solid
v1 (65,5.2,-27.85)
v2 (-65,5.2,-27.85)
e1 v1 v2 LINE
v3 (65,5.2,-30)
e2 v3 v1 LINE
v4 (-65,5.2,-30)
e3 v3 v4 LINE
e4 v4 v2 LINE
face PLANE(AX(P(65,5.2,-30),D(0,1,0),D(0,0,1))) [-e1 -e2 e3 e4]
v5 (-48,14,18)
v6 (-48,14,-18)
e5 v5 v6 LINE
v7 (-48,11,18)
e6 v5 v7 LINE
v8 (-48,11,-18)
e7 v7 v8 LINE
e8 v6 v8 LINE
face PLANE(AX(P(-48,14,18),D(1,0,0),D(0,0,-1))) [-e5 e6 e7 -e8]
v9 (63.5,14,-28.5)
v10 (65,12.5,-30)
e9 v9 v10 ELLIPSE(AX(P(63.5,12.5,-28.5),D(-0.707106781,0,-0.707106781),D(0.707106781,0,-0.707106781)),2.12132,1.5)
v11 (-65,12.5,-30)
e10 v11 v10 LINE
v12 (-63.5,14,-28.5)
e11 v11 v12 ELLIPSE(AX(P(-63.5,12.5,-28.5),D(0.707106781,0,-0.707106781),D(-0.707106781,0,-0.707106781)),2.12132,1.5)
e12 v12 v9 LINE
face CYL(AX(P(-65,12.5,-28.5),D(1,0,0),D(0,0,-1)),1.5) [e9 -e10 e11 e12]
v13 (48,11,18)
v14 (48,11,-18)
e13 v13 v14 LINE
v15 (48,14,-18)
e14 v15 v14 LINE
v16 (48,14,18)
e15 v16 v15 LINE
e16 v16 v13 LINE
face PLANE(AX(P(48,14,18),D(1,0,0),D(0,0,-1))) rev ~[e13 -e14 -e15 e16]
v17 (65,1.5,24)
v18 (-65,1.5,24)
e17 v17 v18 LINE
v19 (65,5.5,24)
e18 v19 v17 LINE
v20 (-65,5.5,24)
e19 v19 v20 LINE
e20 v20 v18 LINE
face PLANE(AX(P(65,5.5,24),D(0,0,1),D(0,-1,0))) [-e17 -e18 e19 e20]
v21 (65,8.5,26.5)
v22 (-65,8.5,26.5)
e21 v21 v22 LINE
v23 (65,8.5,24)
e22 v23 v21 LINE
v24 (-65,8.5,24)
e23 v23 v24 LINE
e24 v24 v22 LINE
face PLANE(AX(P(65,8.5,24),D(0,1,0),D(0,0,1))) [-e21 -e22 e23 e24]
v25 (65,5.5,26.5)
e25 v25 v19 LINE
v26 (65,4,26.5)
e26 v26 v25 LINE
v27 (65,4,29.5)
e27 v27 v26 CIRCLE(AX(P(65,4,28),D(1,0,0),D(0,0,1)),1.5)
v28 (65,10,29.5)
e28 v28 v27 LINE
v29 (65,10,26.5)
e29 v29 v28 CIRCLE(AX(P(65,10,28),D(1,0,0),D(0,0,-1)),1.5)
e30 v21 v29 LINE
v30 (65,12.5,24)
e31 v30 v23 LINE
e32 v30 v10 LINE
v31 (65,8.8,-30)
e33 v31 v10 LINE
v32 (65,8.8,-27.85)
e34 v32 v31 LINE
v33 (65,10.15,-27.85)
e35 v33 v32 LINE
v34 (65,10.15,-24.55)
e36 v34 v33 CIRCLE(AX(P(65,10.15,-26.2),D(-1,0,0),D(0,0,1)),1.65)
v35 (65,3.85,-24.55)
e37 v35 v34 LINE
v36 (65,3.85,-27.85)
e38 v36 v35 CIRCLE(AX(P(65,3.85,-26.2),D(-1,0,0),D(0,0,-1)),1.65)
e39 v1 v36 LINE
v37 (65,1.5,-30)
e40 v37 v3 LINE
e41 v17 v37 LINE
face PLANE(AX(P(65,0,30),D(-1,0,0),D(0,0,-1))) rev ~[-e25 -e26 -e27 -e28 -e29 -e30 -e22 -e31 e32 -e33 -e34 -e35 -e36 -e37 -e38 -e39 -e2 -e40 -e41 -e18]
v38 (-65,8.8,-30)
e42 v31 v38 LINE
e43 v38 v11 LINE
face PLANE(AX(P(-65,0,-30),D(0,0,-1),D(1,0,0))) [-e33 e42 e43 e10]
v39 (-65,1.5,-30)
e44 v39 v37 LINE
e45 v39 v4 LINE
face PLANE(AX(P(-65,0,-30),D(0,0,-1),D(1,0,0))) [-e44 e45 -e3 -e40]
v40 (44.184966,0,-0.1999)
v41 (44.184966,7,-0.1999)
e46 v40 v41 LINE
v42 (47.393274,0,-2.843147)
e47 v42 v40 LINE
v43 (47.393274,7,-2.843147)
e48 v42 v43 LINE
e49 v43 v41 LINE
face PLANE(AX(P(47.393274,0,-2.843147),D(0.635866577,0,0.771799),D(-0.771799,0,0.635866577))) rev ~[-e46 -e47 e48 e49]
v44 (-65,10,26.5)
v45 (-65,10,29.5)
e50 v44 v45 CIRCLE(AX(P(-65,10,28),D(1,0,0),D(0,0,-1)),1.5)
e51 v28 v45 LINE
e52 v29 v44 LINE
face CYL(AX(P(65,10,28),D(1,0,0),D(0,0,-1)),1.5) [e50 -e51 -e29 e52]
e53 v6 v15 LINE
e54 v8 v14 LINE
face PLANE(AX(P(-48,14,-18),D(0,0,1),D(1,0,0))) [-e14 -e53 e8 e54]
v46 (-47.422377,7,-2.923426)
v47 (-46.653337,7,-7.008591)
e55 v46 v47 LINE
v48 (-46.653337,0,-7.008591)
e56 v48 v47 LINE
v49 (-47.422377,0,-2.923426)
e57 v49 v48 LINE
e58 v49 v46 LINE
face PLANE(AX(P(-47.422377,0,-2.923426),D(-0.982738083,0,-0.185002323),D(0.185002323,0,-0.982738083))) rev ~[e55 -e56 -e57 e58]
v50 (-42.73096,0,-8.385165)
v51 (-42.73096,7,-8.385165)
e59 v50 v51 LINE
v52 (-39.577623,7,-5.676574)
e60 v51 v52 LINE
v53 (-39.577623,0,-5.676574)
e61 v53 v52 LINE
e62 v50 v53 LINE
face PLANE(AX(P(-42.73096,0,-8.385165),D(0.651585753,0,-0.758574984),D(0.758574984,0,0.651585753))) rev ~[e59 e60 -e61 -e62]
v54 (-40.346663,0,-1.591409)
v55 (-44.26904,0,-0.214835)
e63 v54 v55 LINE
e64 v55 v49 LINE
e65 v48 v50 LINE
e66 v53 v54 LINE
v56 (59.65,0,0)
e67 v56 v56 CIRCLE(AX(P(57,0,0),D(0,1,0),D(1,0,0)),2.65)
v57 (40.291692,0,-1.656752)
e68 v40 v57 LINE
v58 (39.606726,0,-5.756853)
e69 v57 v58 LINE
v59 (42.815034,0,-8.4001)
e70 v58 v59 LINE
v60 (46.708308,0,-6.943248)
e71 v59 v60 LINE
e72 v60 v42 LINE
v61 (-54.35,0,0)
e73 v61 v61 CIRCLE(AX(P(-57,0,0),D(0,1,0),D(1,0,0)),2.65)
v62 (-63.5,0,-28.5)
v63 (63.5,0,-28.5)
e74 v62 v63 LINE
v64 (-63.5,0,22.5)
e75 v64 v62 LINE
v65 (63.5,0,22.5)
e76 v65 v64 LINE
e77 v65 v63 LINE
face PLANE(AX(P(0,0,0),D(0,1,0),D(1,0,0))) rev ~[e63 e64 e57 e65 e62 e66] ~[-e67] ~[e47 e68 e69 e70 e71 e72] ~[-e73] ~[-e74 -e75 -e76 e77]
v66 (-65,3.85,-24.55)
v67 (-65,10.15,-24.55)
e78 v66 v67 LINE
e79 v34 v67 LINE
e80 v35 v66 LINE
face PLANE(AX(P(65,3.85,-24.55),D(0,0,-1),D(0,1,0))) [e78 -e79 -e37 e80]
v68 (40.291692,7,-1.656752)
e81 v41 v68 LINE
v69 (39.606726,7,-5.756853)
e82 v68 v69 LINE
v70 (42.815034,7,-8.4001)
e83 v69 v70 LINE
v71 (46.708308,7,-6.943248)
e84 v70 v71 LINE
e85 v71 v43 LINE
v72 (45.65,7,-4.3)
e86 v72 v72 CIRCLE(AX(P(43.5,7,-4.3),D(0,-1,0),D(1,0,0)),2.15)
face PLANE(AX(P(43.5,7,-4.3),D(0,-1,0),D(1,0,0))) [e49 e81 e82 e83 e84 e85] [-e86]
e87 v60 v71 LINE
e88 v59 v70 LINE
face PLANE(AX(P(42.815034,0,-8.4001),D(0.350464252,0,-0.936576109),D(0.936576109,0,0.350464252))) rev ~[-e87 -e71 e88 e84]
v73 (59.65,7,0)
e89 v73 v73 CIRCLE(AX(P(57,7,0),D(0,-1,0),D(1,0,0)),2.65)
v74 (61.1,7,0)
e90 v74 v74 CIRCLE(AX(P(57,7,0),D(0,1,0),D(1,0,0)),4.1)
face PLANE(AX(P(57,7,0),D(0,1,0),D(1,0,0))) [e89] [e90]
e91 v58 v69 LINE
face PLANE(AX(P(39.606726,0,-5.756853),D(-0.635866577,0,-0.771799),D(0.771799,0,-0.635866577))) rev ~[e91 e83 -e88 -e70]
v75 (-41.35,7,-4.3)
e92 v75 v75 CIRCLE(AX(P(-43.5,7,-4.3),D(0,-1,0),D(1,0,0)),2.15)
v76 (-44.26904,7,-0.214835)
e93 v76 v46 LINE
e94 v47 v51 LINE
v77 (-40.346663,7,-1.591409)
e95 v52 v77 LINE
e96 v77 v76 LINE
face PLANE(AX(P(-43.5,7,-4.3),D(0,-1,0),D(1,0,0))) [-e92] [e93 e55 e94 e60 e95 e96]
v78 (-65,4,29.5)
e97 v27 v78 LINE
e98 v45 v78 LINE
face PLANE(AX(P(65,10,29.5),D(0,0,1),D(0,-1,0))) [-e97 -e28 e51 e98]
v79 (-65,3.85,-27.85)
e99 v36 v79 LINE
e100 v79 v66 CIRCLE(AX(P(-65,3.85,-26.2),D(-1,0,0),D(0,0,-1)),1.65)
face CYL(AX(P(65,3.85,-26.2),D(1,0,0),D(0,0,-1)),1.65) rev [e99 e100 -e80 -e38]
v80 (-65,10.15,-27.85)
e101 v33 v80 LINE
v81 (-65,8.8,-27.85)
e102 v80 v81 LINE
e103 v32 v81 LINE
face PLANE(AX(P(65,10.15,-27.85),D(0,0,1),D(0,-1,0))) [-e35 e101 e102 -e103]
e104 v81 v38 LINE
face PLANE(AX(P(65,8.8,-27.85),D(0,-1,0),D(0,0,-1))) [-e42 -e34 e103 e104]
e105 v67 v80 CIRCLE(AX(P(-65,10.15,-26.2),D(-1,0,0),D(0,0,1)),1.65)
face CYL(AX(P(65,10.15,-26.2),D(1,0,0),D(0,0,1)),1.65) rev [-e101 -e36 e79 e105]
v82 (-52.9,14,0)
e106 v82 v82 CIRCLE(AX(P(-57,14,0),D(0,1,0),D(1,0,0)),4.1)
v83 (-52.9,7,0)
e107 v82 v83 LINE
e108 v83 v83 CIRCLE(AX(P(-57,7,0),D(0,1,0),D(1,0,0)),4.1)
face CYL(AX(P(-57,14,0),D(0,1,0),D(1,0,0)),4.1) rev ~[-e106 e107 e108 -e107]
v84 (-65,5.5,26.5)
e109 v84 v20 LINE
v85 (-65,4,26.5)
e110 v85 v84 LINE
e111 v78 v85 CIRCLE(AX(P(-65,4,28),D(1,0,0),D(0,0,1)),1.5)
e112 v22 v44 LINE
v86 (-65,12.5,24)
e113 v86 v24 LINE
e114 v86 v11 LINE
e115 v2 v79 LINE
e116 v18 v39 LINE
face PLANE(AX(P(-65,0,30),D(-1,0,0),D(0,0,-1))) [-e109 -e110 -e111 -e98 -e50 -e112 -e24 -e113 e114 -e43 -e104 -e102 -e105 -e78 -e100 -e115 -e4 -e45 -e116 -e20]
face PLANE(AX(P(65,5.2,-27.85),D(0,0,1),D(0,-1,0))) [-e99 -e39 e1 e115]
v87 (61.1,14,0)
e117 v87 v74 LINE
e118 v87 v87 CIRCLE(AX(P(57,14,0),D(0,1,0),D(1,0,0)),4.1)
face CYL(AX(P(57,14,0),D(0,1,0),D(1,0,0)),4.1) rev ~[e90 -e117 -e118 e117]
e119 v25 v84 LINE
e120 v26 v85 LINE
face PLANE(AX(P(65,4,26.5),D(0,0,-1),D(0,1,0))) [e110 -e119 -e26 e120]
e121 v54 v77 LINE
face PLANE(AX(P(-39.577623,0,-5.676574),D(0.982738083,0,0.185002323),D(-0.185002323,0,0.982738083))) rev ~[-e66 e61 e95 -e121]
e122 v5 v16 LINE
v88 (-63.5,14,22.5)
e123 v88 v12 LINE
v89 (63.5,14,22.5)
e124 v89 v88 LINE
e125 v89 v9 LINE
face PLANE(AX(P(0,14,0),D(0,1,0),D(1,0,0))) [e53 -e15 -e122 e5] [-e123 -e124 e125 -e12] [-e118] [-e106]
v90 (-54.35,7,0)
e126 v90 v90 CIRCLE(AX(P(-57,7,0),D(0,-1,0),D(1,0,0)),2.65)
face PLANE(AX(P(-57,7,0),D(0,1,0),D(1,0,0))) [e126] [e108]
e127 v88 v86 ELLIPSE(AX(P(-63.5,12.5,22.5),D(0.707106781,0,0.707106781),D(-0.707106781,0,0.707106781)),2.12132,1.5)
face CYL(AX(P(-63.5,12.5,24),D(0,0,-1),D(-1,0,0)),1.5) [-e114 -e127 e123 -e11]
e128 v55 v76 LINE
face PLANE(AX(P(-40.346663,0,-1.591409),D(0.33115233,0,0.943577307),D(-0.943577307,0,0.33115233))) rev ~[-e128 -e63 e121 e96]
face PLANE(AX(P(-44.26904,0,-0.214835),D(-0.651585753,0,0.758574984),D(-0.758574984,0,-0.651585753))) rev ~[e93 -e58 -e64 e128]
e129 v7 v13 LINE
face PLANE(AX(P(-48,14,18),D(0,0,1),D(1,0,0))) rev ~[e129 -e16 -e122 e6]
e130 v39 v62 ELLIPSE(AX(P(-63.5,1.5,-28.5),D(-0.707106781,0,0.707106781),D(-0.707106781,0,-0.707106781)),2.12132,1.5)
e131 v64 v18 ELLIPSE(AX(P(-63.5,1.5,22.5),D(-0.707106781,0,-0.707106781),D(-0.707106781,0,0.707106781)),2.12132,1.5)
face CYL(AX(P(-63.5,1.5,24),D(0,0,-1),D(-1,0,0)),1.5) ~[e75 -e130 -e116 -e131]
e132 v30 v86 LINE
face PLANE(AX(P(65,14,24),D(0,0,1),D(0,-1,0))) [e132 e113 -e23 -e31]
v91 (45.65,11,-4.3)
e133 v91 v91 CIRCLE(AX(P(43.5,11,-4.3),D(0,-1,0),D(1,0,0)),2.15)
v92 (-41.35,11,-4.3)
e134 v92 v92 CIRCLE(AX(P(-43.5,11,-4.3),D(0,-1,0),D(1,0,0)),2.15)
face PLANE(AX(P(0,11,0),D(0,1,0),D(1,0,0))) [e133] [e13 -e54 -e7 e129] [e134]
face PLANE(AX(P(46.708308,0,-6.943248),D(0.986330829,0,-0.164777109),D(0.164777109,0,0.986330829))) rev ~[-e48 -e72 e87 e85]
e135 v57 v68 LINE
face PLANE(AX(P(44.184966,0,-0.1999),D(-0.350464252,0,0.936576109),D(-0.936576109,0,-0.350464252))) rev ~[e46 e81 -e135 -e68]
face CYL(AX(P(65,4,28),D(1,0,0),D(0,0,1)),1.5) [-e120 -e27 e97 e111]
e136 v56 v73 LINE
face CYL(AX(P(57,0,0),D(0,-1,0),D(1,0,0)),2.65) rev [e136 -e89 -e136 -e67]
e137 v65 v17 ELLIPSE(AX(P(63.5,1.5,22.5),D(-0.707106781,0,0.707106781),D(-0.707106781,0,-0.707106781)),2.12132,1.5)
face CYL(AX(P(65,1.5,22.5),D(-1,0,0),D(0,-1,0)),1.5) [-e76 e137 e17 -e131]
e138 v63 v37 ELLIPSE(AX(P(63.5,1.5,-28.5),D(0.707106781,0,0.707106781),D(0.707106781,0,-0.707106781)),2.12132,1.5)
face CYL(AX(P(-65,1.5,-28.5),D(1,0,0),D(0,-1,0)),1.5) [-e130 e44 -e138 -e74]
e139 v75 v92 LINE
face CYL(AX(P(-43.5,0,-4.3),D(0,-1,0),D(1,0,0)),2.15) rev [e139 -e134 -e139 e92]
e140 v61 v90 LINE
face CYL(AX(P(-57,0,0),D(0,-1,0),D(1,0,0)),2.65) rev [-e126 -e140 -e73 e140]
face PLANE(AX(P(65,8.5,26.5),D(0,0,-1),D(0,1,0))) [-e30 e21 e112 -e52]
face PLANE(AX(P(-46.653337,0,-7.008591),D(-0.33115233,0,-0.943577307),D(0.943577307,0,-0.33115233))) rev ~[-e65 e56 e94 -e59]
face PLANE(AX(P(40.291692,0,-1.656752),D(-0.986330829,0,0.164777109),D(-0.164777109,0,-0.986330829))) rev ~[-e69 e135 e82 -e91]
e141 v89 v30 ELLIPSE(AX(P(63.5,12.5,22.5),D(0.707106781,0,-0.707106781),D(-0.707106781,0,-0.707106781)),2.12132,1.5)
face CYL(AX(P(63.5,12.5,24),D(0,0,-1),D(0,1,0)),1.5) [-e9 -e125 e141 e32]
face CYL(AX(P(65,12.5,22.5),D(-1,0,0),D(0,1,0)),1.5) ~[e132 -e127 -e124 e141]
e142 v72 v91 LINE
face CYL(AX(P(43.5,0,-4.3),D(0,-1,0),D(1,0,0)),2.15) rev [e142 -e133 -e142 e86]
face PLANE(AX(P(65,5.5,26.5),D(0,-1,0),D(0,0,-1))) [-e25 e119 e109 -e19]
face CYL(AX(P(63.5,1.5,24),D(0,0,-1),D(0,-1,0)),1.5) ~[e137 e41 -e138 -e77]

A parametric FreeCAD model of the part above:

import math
import FreeCAD as App
import Part
import Sketcher

V = App.Vector
Q = App.Units.Quantity


def edges_at(feature, points):
    """Names of the edges that pass closest to the given points."""
    edges = feature.Shape.Edges
    near = lambda p: min(range(len(edges)), key=lambda i: edges[i].distToShape(Part.Vertex(*p))[0])
    return sorted({f"Edge{near(p) + 1}" for p in points})


def add_polygon(sketch, points):
    """Adds a closed chain of lines whose ends are joined by coincident constraints."""
    first, n = sketch.GeometryCount, len(points)
    for a, b in zip(points, points[1:] + points[:1]):
        sketch.addGeometry(Part.LineSegment(App.Vector(*a, 0), App.Vector(*b, 0)), False)
    for i in range(n):
        sketch.addConstraint(Sketcher.Constraint("Coincident", first + i, 2, first + (i + 1) % n, 1))

doc = App.newDocument("Part")
body = doc.addObject("PartDesign::Body", "Body")

# Sketch on XZ plane
sketch1 = body.newObject("Sketcher::SketchObject", "Sketch")
sketch1.AttachmentSupport = (doc.getObject("XZ_Plane"), [""])
sketch1.MapMode = "FlatFace"
add_polygon(sketch1, [(-65, -30), (-65, 30), (65, 30), (65, -30)])  # lines 0-3
sketch1.addGeometry(Part.Circle(V(-57, 0, 0), V(0, 0, 1), 2.6), False)  # 4
sketch1.addGeometry(Part.Circle(V(57, 0, 0), V(0, 0, 1), 2.6), False)  # 5
sketch1.addGeometry(Part.Circle(V(-43.5, -4.3, 0), V(0, 0, 1), 2.1), False)  # 6
sketch1.addGeometry(Part.Circle(V(43.5, -4.3, 0), V(0, 0, 1), 2.1), False)  # 7
sketch1.addConstraint([
    Sketcher.Constraint("Vertical", 0),
    Sketcher.Constraint("Horizontal", 1),
    Sketcher.Constraint("Vertical", 2),
    Sketcher.Constraint("Horizontal", 3),
    Sketcher.Constraint("Equal", 4, 5),
    Sketcher.Constraint("Equal", 6, 7),
    Sketcher.Constraint("Symmetric", 4, 3, 5, 3, -1, 1),
    Sketcher.Constraint("Symmetric", 0, 2, 2, 2, -1, 1),
    Sketcher.Constraint("Symmetric", 6, 3, 7, 3, -2),
    Sketcher.Constraint("PointOnObject", 4, 3, -1),
    Sketcher.Constraint("Diameter", 4, Q("5.3 mm")),
    Sketcher.Constraint("Diameter", 6, Q("4.3 mm")),
    Sketcher.Constraint("DistanceX", 1, 1, 1, 2, Q("130 mm")),
    Sketcher.Constraint("DistanceY", 0, 1, 0, 2, Q("60 mm")),
    Sketcher.Constraint("DistanceX", 4, 3, -1, 1, Q("57 mm")),
    Sketcher.Constraint("DistanceX", 6, 3, 7, 3, Q("87 mm")),
    Sketcher.Constraint("DistanceY", 6, 3, -1, 1, Q("4.3 mm")),
])
pad1 = body.newObject("PartDesign::Pad", "Pad")
pad1.Profile = sketch1
pad1.Length = 14
pad1.Reversed = True

# Sketch on XZ plane
sketch2 = body.newObject("Sketcher::SketchObject", "Sketch001")
sketch2.AttachmentSupport = (doc.getObject("XZ_Plane"), [""])
sketch2.MapMode = "FlatFace"
add_polygon(sketch2, [(-39.6, -5.7), (-40.3, -1.6), (-44.3, -0.2), (-47.4, -2.9), (-46.7, -7), (-42.7, -8.4)])  # lines 0-5
add_polygon(sketch2, [(42.8, -8.4), (46.7, -6.9), (47.4, -2.8), (44.2, -0.2), (40.3, -1.7), (39.6, -5.8)])  # lines 6-11
sketch2.addConstraint([
    Sketcher.Constraint("Parallel", 0, 3),
    Sketcher.Constraint("Parallel", 1, 4),
    Sketcher.Constraint("Parallel", 2, 5),
    Sketcher.Constraint("Parallel", 6, 9),
    Sketcher.Constraint("Parallel", 7, 10),
    Sketcher.Constraint("Parallel", 8, 11),
    Sketcher.Constraint("Equal", 0, 1),
    Sketcher.Constraint("Equal", 1, 2),
    Sketcher.Constraint("Equal", 2, 3),
    Sketcher.Constraint("Equal", 5, 6),
    Sketcher.Constraint("Equal", 6, 7),
    Sketcher.Constraint("Equal", 7, 8),
    Sketcher.Constraint("Equal", 8, 9),
    Sketcher.Constraint("DistanceY", 8, 2, -1, 1, Q("0.1999 mm")),
    Sketcher.Constraint("DistanceY", 11, 2, -1, 1, Q("8.4001 mm")),
    Sketcher.Constraint("DistanceY", 6, 2, 7, 2, Q("4.1001 mm")),
    Sketcher.Constraint("Distance", 0, Q("4.156922 mm")),
    Sketcher.Constraint("DistanceY", 0, 2, -1, 1, Q("1.591409 mm")),
    Sketcher.Constraint("DistanceX", 1, 2, -1, 1, Q("44.26904 mm")),
    Sketcher.Constraint("DistanceY", 3, 2, -1, 1, Q("7.008591 mm")),
    Sketcher.Constraint("DistanceX", 4, 2, -1, 1, Q("42.73096 mm")),
    Sketcher.Constraint("DistanceX", -1, 1, 6, 2, Q("46.708308 mm")),
    Sketcher.Constraint("DistanceX", -1, 1, 9, 2, Q("40.291692 mm")),
    Sketcher.Constraint("DistanceY", 2, 2, 1, 2, Q("2.708591 mm")),
])
pocket1 = body.newObject("PartDesign::Pocket", "Pocket")
pocket1.Profile = sketch2
pocket1.Length = 7

# Sketch on XZ plane
sketch3 = body.newObject("Sketcher::SketchObject", "Sketch002")
sketch3.AttachmentSupport = (doc.getObject("XZ_Plane"), [""])
sketch3.MapMode = "FlatFace"
sketch3.AttachmentOffset = App.Placement(V(0, 0, -14), App.Rotation())
sketch3.addGeometry([
    Part.Circle(V(-57, 0, 0), V(0, 0, 1), 4.1),
    Part.Circle(V(57, 0, 0), V(0, 0, 1), 4.1),
], False)
sketch3.addConstraint([
    Sketcher.Constraint("Equal", 0, 1),
    Sketcher.Constraint("Symmetric", 0, 3, 1, 3, -1, 1),
    Sketcher.Constraint("PointOnObject", 0, 3, -1),
    Sketcher.Constraint("Diameter", 0, Q("8.2 mm")),
    Sketcher.Constraint("DistanceX", 0, 3, -1, 1, Q("57 mm")),
])
pocket2 = body.newObject("PartDesign::Pocket", "Pocket001")
pocket2.Profile = sketch3
pocket2.Length = 7
pocket2.Reversed = True

# Sketch on XZ plane
sketch4 = body.newObject("Sketcher::SketchObject", "Sketch003")
sketch4.AttachmentSupport = (doc.getObject("XZ_Plane"), [""])
sketch4.MapMode = "FlatFace"
sketch4.AttachmentOffset = App.Placement(V(0, 0, -14), App.Rotation())
add_polygon(sketch4, [(-48, -18), (-48, 18), (48, 18), (48, -18)])  # lines 0-3
sketch4.addConstraint([
    Sketcher.Constraint("Vertical", 0),
    Sketcher.Constraint("Horizontal", 1),
    Sketcher.Constraint("Vertical", 2),
    Sketcher.Constraint("Horizontal", 3),
    Sketcher.Constraint("Symmetric", 0, 2, 2, 2, -1, 1),
    Sketcher.Constraint("DistanceX", 1, 1, 1, 2, Q("96 mm")),
    Sketcher.Constraint("DistanceY", 0, 1, 0, 2, Q("36 mm")),
])
pocket3 = body.newObject("PartDesign::Pocket", "Pocket002")
pocket3.Profile = sketch4
pocket3.Length = 3
pocket3.Reversed = True

# Sketch on YZ plane
sketch5 = body.newObject("Sketcher::SketchObject", "Sketch004")
sketch5.AttachmentSupport = (doc.getObject("YZ_Plane"), [""])
sketch5.MapMode = "FlatFace"
sketch5.AttachmentOffset = App.Placement(V(0, 0, 65), App.Rotation())
sketch5.addGeometry([
    Part.LineSegment(V(8.5, 24, 0), V(14, 24, 0)),  # 0
    Part.LineSegment(V(14, 24, 0), V(14, 30, 0)),  # 1
    Part.LineSegment(V(14, 30, 0), V(0, 30, 0)),  # 2
    Part.LineSegment(V(0, 30, 0), V(0, 24, 0)),  # 3
    Part.LineSegment(V(0, 24, 0), V(5.5, 24, 0)),  # 4
    Part.LineSegment(V(5.5, 24, 0), V(5.5, 26.5, 0)),  # 5
    Part.LineSegment(V(5.5, 26.5, 0), V(4, 26.5, 0)),  # 6
    Part.ArcOfCircle(Part.Circle(V(4, 28, 0), V(0, 0, 1), 1.5), math.radians(90), math.radians(270)),  # 7
    Part.LineSegment(V(4, 29.5, 0), V(10, 29.5, 0)),  # 8
    Part.ArcOfCircle(Part.Circle(V(10, 28, 0), V(0, 0, 1), 1.5), math.radians(-90), math.radians(90)),  # 9
    Part.LineSegment(V(10, 26.5, 0), V(8.5, 26.5, 0)),  # 10
    Part.LineSegment(V(8.5, 26.5, 0), V(8.5, 24, 0)),  # 11
    Part.LineSegment(V(8.8, -30, 0), V(8.8, -27.9, 0)),  # 12
    Part.LineSegment(V(8.8, -27.9, 0), V(10.2, -27.9, 0)),  # 13
    Part.ArcOfCircle(Part.Circle(V(10.2, -26.2, 0), V(0, 0, 1), 1.6), math.radians(-90), math.radians(90)),  # 14
    Part.LineSegment(V(10.2, -24.6, 0), V(3.9, -24.6, 0)),  # 15
    Part.ArcOfCircle(Part.Circle(V(3.9, -26.2, 0), V(0, 0, 1), 1.6), math.radians(90), math.radians(270)),  # 16
    Part.LineSegment(V(3.9, -27.9, 0), V(5.2, -27.9, 0)),  # 17
    Part.LineSegment(V(5.2, -27.9, 0), V(5.2, -30, 0)),  # 18
    Part.LineSegment(V(5.2, -30, 0), V(8.8, -30, 0)),  # 19
], False)
sketch5.addConstraint([
    Sketcher.Constraint("Coincident", 0, 2, 1, 1),
    Sketcher.Constraint("Coincident", 1, 2, 2, 1),
    Sketcher.Constraint("Coincident", 2, 2, 3, 1),
    Sketcher.Constraint("Coincident", 3, 2, 4, 1),
    Sketcher.Constraint("Coincident", 4, 2, 5, 1),
    Sketcher.Constraint("Coincident", 5, 2, 6, 1),
    Sketcher.Constraint("Tangent", 6, 2, 7, 2),
    Sketcher.Constraint("Tangent", 7, 1, 8, 1),
    Sketcher.Constraint("Tangent", 8, 2, 9, 2),
    Sketcher.Constraint("Tangent", 9, 1, 10, 1),
    Sketcher.Constraint("Coincident", 10, 2, 11, 1),
    Sketcher.Constraint("Coincident", 11, 2, 0, 1),
    Sketcher.Constraint("Coincident", 12, 2, 13, 1),
    Sketcher.Constraint("Tangent", 13, 2, 14, 1),
    Sketcher.Constraint("Tangent", 14, 2, 15, 1),
    Sketcher.Constraint("Tangent", 15, 2, 16, 1),
    Sketcher.Constraint("Tangent", 16, 2, 17, 1),
    Sketcher.Constraint("Coincident", 17, 2, 18, 1),
    Sketcher.Constraint("Coincident", 18, 2, 19, 1),
    Sketcher.Constraint("Coincident", 19, 2, 12, 1),
    Sketcher.Constraint("Horizontal", 0),
    Sketcher.Constraint("Vertical", 1),
    Sketcher.Constraint("Horizontal", 2),
    Sketcher.Constraint("Vertical", 3),
    Sketcher.Constraint("Horizontal", 4),
    Sketcher.Constraint("Vertical", 5),
    Sketcher.Constraint("Horizontal", 6),
    Sketcher.Constraint("Horizontal", 8),
    Sketcher.Constraint("Horizontal", 10),
    Sketcher.Constraint("Vertical", 11),
    Sketcher.Constraint("Vertical", 12),
    Sketcher.Constraint("Horizontal", 13),
    Sketcher.Constraint("Horizontal", 15),
    Sketcher.Constraint("Horizontal", 17),
    Sketcher.Constraint("Vertical", 18),
    Sketcher.Constraint("Horizontal", 19),
    Sketcher.Constraint("Equal", 7, 9),
    Sketcher.Constraint("Equal", 14, 16),
    Sketcher.Constraint("PointOnObject", 2, 2, -2),
    Sketcher.Constraint("Horizontal", 0, 2, 3, 2),
    Sketcher.Constraint("Equal", 0, 4),
    Sketcher.Constraint("Equal", 6, 10),
    Sketcher.Constraint("Equal", 13, 17),
    Sketcher.Constraint("Equal", 8, 1),
    Sketcher.Constraint("Radius", 7, Q("1.5 mm")),
    Sketcher.Constraint("DistanceX", 2, 2, 2, 1, Q("14 mm")),
    Sketcher.Constraint("DistanceX", 8, 1, 8, 2, Q("6 mm")),
    Sketcher.Constraint("Radius", 14, Q("1.65 mm")),
    Sketcher.Constraint("DistanceX", 0, 1, 0, 2, Q("5.5 mm")),
    Sketcher.Constraint("DistanceX", 15, 2, 15, 1, Q("6.3 mm")),
    Sketcher.Constraint("DistanceX", 19, 1, 19, 2, Q("3.6 mm")),
    Sketcher.Constraint("DistanceY", 5, 1, 5, 2, Q("2.5 mm")),
    Sketcher.Constraint("DistanceY", -1, 1, 7, 3, Q("28 mm")),
    Sketcher.Constraint("DistanceY", 18, 2, -1, 1, Q("30 mm")),
    Sketcher.Constraint("DistanceY", 12, 1, 12, 2, Q("2.15 mm")),
    Sketcher.Constraint("DistanceX", -1, 1, 12, 2, Q("8.8 mm")),
])
pocket4 = body.newObject("PartDesign::Pocket", "Pocket003")
pocket4.Profile = sketch5
pocket4.Length = 130
doc.recompute()

fillet = body.newObject("PartDesign::Fillet", "Fillet")
fillet.Base = (pocket4, edges_at(pocket4, [
    (65, 0, -3),
    (65, 14, -3),
    (0, 14, 24),
    (0, 0, 24),
    (-65, 14, -3),
    (-65, 0, -3),
    (0, 0, -30),
    (0, 14, -30),
]))
fillet.Radius = 1.5

doc.recompute()
